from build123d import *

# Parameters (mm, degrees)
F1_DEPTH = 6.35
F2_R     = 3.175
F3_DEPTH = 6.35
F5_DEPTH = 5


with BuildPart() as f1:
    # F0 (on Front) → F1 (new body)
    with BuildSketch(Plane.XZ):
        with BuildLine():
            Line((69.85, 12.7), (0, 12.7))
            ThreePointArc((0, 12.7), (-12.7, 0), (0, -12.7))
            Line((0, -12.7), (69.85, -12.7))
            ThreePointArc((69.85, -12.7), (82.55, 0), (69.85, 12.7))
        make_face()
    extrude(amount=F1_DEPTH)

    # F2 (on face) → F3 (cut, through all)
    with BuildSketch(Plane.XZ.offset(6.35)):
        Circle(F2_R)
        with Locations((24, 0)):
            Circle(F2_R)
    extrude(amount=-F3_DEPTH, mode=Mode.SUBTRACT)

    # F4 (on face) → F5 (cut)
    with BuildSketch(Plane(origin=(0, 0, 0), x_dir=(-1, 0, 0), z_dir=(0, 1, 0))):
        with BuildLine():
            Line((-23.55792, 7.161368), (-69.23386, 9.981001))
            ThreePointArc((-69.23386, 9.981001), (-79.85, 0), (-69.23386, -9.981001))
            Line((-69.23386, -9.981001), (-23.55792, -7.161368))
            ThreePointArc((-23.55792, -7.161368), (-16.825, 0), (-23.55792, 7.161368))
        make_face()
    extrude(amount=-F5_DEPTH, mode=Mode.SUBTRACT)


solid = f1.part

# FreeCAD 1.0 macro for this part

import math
import FreeCAD as App
import Part
import Sketcher
Q = App.Units.Quantity

doc = App.newDocument("Part")
body = doc.addObject("PartDesign::Body", "Body")

# Sketch on XZ plane
sketch1 = body.newObject("Sketcher::SketchObject", "Sketch")
sketch1.AttachmentSupport = (doc.getObject("XZ_Plane"), [""])
sketch1.MapMode = "FlatFace"
sketch1.addGeometry(Part.LineSegment(App.Vector(70, 13, 0), App.Vector(0, 13, 0)), False)
sketch1.addGeometry(Part.ArcOfCircle(Part.Circle(App.Vector(0, 0, 0), App.Vector(0, 0, 1), 13), math.radians(90), math.radians(270)), False)
sketch1.addGeometry(Part.LineSegment(App.Vector(0, -13, 0), App.Vector(70, -13, 0)), False)
sketch1.addGeometry(Part.ArcOfCircle(Part.Circle(App.Vector(70, 0, 0), App.Vector(0, 0, 1), 13), math.radians(-90), math.radians(90)), False)
sketch1.addConstraint(Sketcher.Constraint("Tangent", 0, 2, 1, 1))
sketch1.addConstraint(Sketcher.Constraint("Tangent", 1, 2, 2, 1))
sketch1.addConstraint(Sketcher.Constraint("Tangent", 2, 2, 3, 1))
sketch1.addConstraint(Sketcher.Constraint("Tangent", 3, 2, 0, 1))
sketch1.addConstraint(Sketcher.Constraint("Horizontal", 0))
sketch1.addConstraint(Sketcher.Constraint("Horizontal", 2))
sketch1.addConstraint(Sketcher.Constraint("Coincident", 1, 3, -1, 1))
sketch1.addConstraint(Sketcher.Constraint("Radius", 1, Q("0.5 in")))
sketch1.addConstraint(Sketcher.Constraint("DistanceX", 0, 2, 0, 1, Q("2.75 in")))
pad1 = body.newObject("PartDesign::Pad", "Pad")
pad1.Profile = sketch1
pad1.Length = Q("0.25 in")

# Sketch on XZ plane
sketch2 = body.newObject("Sketcher::SketchObject", "Sketch001")
sketch2.AttachmentSupport = (doc.getObject("XZ_Plane"), [""])
sketch2.MapMode = "FlatFace"
sketch2.AttachmentOffset = App.Placement(App.Vector(0, 0, 0.25 * 25.4), App.Rotation())
sketch2.addGeometry(Part.Circle(App.Vector(0, 0, 0), App.Vector(0, 0, 1), 3.2), False)
sketch2.addGeometry(Part.Circle(App.Vector(24, 0, 0), App.Vector(0, 0, 1), 3.2), False)
sketch2.addConstraint(Sketcher.Constraint("Coincident", 0, 3, -1, 1))
sketch2.addConstraint(Sketcher.Constraint("Equal", 0, 1))
sketch2.addConstraint(Sketcher.Constraint("PointOnObject", 1, 3, -1))
sketch2.addConstraint(Sketcher.Constraint("Diameter", 0, Q("0.25 in")))
sketch2.addConstraint(Sketcher.Constraint("DistanceX", -1, 1, 1, 3, Q("24 mm")))
pocket1 = body.newObject("PartDesign::Pocket", "Pocket")
pocket1.Profile = sketch2
pocket1.Type = "ThroughAll"

# Sketch on XZ plane
sketch3 = body.newObject("Sketcher::SketchObject", "Sketch002")
sketch3.AttachmentSupport = (doc.getObject("XZ_Plane"), [""])
sketch3.MapMode = "FlatFace"
sketch3.addGeometry(Part.LineSegment(App.Vector(24, 7, 0), App.Vector(69, 10, 0)), False)
sketch3.addGeometry(Part.ArcOfCircle(Part.Circle(App.Vector(70, 0, 0), App.Vector(0, 0, 1), 10), math.radians(-94), math.radians(94)), False)
sketch3.addGeometry(Part.LineSegment(App.Vector(69, -10, 0), App.Vector(24, -7, 0)), False)
sketch3.addGeometry(Part.ArcOfCircle(Part.Circle(App.Vector(24, 0, 0), App.Vector(0, 0, 1), 7), math.radians(94), math.radians(266)), False)
sketch3.addConstraint(Sketcher.Constraint("Tangent", 0, 2, 1, 2))
sketch3.addConstraint(Sketcher.Constraint("Tangent", 1, 1, 2, 1))
sketch3.addConstraint(Sketcher.Constraint("Tangent", 2, 2, 3, 2))
sketch3.addConstraint(Sketcher.Constraint("Tangent", 3, 1, 0, 1))
sketch3.addConstraint(Sketcher.Constraint("Symmetric", 0, 2, 1, 1, -1))
sketch3.addConstraint(Sketcher.Constraint("DistanceX", -1, 1, 1, 3, Q("2.75 in")))
sketch3.addConstraint(Sketcher.Constraint("Radius", 1, Q("10 mm")))
sketch3.addConstraint(Sketcher.Constraint("Radius", 3, Q("7.175 mm")))
sketch3.addConstraint(Sketcher.Constraint("DistanceX", -1, 1, 3, 3, Q("24 mm")))
pocket2 = body.newObject("PartDesign::Pocket", "Pocket001")
pocket2.Profile = sketch3
pocket2.Length = 5
pocket2.Reversed = True

doc.recompute()
